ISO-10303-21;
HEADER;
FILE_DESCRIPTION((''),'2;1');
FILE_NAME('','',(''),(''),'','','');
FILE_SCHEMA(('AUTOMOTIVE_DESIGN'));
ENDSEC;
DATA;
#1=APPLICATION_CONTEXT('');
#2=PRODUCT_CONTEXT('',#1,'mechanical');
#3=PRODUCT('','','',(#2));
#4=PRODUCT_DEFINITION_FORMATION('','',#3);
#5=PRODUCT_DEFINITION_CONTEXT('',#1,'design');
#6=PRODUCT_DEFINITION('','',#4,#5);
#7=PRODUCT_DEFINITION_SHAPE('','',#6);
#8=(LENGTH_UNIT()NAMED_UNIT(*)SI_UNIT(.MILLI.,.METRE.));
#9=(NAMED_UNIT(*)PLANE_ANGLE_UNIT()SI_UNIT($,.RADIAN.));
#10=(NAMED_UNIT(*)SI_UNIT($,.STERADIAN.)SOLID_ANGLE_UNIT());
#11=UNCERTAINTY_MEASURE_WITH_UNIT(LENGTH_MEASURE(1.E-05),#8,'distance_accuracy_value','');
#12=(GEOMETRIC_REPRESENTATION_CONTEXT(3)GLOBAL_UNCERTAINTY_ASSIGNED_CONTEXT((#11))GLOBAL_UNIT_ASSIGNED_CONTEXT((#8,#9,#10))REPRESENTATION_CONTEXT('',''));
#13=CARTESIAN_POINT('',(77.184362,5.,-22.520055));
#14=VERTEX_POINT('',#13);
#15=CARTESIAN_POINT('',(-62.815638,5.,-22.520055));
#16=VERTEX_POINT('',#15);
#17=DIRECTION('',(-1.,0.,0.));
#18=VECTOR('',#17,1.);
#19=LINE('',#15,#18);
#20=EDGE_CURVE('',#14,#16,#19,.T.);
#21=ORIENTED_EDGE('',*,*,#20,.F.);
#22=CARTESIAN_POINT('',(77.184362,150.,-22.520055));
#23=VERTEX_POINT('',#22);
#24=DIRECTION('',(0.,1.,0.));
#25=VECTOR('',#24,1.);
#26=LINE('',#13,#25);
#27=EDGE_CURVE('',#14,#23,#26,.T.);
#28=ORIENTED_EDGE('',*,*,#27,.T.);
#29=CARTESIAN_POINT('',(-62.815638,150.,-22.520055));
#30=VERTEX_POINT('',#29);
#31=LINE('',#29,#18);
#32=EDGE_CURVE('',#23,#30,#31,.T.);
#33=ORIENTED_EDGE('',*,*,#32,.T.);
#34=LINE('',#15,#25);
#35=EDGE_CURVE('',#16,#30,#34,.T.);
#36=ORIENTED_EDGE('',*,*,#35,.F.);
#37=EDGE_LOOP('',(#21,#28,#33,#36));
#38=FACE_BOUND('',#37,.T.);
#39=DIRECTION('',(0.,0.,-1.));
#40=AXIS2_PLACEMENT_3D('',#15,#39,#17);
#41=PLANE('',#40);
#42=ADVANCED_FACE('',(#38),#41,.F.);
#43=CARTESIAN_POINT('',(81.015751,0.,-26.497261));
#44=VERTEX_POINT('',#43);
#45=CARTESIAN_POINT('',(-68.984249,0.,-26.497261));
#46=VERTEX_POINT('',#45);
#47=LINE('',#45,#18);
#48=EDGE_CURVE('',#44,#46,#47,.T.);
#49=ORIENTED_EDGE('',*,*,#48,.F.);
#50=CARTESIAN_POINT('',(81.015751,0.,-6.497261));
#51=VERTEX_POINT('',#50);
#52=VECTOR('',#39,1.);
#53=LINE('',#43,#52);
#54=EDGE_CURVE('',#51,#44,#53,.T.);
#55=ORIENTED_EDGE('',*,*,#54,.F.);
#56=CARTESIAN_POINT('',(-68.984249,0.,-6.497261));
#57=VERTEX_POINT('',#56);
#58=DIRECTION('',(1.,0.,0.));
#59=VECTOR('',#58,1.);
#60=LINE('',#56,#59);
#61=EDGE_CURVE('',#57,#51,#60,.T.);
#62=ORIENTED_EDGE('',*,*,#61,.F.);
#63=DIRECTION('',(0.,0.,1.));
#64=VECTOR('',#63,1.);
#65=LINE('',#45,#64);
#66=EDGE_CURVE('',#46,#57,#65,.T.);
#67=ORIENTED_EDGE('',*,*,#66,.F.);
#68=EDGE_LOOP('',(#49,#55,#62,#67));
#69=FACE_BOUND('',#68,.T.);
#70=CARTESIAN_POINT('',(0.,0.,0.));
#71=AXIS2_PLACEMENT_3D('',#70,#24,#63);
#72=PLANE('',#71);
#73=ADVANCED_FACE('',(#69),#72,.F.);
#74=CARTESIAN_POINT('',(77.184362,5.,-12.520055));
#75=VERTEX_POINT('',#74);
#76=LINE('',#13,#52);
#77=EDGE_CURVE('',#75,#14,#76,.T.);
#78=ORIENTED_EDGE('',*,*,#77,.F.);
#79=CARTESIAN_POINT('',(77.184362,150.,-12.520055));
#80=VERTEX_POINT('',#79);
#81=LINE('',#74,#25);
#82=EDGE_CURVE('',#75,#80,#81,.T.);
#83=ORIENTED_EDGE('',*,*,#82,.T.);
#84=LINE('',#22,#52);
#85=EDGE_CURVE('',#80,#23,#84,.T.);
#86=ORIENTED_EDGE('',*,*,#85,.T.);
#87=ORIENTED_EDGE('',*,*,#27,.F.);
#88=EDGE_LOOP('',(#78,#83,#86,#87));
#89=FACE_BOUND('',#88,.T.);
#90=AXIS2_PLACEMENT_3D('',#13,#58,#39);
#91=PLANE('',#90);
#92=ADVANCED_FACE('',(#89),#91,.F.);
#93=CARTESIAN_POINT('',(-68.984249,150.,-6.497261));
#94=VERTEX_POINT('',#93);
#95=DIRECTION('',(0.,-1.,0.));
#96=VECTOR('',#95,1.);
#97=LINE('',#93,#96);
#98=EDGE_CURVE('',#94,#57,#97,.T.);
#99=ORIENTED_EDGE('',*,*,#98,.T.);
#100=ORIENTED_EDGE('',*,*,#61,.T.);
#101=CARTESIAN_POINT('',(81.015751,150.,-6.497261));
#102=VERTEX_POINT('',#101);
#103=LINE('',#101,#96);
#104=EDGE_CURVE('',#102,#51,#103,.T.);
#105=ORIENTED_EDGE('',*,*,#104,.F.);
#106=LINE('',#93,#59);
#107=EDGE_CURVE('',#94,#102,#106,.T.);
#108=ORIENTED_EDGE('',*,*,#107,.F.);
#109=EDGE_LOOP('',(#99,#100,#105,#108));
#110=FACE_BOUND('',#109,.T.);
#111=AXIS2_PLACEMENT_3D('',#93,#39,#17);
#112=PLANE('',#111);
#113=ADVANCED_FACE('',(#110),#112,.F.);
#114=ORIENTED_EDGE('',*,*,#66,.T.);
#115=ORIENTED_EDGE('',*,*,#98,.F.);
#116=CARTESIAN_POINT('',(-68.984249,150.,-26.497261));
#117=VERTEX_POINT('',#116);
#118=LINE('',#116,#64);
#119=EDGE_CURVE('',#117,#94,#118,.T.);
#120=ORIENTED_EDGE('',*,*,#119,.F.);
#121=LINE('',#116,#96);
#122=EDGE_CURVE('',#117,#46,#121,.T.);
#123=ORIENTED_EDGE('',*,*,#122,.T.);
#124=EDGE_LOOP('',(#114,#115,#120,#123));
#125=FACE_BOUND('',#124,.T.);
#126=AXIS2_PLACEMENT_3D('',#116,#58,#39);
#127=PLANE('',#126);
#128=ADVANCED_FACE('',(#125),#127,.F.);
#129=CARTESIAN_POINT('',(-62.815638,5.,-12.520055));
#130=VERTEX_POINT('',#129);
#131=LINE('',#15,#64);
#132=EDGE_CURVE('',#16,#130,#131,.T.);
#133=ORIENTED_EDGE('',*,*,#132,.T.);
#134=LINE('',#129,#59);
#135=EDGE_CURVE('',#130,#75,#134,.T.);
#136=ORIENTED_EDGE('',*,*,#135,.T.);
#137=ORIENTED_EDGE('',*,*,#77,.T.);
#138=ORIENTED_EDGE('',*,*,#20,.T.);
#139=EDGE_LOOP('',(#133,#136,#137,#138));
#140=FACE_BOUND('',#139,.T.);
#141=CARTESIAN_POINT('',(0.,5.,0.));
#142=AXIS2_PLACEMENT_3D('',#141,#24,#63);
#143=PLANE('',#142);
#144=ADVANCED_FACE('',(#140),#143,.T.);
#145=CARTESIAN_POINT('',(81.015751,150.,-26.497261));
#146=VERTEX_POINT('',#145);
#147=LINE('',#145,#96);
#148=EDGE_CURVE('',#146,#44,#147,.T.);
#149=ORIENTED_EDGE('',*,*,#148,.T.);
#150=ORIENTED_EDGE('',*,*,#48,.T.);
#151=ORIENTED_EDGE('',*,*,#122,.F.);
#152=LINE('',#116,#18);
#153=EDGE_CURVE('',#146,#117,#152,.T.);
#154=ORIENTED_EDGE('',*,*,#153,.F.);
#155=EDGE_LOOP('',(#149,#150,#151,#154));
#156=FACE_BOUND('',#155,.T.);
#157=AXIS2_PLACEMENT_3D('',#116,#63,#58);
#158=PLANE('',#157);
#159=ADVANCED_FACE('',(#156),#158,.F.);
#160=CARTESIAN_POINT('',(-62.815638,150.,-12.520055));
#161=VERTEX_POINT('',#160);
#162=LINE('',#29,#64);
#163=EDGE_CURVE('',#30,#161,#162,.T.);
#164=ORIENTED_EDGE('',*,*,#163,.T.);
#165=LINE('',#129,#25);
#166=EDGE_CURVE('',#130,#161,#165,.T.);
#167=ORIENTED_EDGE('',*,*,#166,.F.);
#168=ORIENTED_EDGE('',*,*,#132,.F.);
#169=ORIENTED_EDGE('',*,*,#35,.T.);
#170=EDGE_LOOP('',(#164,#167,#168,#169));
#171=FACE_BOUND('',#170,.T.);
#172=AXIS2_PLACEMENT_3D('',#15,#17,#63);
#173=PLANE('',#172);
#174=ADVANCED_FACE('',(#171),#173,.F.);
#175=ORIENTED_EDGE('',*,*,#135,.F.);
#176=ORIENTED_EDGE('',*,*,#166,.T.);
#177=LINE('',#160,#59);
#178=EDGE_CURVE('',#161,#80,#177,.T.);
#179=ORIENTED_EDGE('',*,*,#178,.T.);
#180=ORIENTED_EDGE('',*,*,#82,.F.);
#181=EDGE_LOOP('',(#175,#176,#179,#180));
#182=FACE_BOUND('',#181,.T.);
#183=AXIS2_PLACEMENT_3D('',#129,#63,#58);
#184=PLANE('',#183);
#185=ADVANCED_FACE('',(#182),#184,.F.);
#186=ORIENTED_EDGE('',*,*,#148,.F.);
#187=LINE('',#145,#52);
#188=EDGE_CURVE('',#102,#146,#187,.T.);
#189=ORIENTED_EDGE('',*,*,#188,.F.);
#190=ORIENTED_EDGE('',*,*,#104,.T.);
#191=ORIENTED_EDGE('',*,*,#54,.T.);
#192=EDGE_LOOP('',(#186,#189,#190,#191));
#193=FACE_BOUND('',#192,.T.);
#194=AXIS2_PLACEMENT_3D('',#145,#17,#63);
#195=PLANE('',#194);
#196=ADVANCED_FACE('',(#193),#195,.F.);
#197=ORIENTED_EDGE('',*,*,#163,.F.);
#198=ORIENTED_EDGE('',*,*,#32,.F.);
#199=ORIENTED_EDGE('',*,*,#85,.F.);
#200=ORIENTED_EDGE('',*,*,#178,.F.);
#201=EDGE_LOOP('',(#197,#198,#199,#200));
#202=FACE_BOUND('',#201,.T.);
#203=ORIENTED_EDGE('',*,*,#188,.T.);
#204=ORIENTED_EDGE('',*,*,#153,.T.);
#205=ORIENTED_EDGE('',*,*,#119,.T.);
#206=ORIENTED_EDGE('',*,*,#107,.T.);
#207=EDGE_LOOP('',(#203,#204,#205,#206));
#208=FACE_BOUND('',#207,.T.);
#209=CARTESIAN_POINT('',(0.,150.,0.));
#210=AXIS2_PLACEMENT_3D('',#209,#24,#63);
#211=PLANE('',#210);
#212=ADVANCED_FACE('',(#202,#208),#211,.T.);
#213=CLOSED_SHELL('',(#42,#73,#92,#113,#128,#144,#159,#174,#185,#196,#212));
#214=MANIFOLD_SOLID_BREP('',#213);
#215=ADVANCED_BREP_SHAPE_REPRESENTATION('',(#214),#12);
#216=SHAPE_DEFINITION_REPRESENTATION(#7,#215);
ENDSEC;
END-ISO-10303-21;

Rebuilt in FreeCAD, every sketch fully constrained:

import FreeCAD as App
import Part
import Sketcher
from FreeCAD import Vector
Q = App.Units.Quantity

doc = App.newDocument("Part")
body = doc.addObject("PartDesign::Body", "Body")

sketch1 = body.newObject("Sketcher::SketchObject", "Sketch")
sketch1.AttachmentSupport = (doc.getObject("XZ_Plane"), [""])
sketch1.MapMode = "FlatFace"
sketch1.addGeometry([
    Part.LineSegment(Vector(-69, -26, 0), Vector(-69, -6, 0)),
    Part.LineSegment(Vector(-69, -6, 0), Vector(81, -6, 0)),
    Part.LineSegment(Vector(81, -6, 0), Vector(81, -26, 0)),
    Part.LineSegment(Vector(81, -26, 0), Vector(-69, -26, 0)),
], False)
sketch1.addConstraint([
    Sketcher.Constraint("Coincident", 0, 2, 1, 1),
    Sketcher.Constraint("Coincident", 1, 2, 2, 1),
    Sketcher.Constraint("Coincident", 2, 2, 3, 1),
    Sketcher.Constraint("Coincident", 3, 2, 0, 1),
    Sketcher.Constraint("Vertical", 0),
    Sketcher.Constraint("Horizontal", 1),
    Sketcher.Constraint("Vertical", 2),
    Sketcher.Constraint("Horizontal", 3),
    Sketcher.Constraint("DistanceX", 1, 1, 1, 2, Q("150 mm")),
    Sketcher.Constraint("DistanceY", 0, 1, 0, 2, Q("20 mm")),
    Sketcher.Constraint("DistanceX", 0, 2, -1, 1, Q("68.984249 mm")),
    Sketcher.Constraint("DistanceY", 0, 2, -1, 1, Q("6.497261 mm")),
])
pad1 = body.newObject("PartDesign::Pad", "Pad")
pad1.Profile = sketch1
pad1.Length = 150
pad1.Reversed = True

sketch2 = body.newObject("Sketcher::SketchObject", "Sketch001")
sketch2.AttachmentSupport = (doc.getObject("XZ_Plane"), [""])
sketch2.MapMode = "FlatFace"
sketch2.AttachmentOffset = App.Placement(Vector(0, 0, -150), App.Rotation())
sketch2.addGeometry([
    Part.LineSegment(Vector(-63, -23, 0), Vector(-63, -13, 0)),
    Part.LineSegment(Vector(-63, -13, 0), Vector(77, -13, 0)),
    Part.LineSegment(Vector(77, -13, 0), Vector(77, -23, 0)),
    Part.LineSegment(Vector(77, -23, 0), Vector(-63, -23, 0)),
], False)
sketch2.addConstraint([
    Sketcher.Constraint("Coincident", 0, 2, 1, 1),
    Sketcher.Constraint("Coincident", 1, 2, 2, 1),
    Sketcher.Constraint("Coincident", 2, 2, 3, 1),
    Sketcher.Constraint("Coincident", 3, 2, 0, 1),
    Sketcher.Constraint("Vertical", 0),
    Sketcher.Constraint("Horizontal", 1),
    Sketcher.Constraint("Vertical", 2),
    Sketcher.Constraint("Horizontal", 3),
    Sketcher.Constraint("DistanceX", 1, 1, 1, 2, Q("140 mm")),
    Sketcher.Constraint("DistanceY", 0, 1, 0, 2, Q("10 mm")),
    Sketcher.Constraint("DistanceX", 0, 2, -1, 1, Q("62.815638 mm")),
    Sketcher.Constraint("DistanceY", 0, 2, -1, 1, Q("12.520055 mm")),
])
pocket1 = body.newObject("PartDesign::Pocket", "Pocket")
pocket1.Profile = sketch2
pocket1.Length = 145
pocket1.Reversed = True

doc.recompute()
